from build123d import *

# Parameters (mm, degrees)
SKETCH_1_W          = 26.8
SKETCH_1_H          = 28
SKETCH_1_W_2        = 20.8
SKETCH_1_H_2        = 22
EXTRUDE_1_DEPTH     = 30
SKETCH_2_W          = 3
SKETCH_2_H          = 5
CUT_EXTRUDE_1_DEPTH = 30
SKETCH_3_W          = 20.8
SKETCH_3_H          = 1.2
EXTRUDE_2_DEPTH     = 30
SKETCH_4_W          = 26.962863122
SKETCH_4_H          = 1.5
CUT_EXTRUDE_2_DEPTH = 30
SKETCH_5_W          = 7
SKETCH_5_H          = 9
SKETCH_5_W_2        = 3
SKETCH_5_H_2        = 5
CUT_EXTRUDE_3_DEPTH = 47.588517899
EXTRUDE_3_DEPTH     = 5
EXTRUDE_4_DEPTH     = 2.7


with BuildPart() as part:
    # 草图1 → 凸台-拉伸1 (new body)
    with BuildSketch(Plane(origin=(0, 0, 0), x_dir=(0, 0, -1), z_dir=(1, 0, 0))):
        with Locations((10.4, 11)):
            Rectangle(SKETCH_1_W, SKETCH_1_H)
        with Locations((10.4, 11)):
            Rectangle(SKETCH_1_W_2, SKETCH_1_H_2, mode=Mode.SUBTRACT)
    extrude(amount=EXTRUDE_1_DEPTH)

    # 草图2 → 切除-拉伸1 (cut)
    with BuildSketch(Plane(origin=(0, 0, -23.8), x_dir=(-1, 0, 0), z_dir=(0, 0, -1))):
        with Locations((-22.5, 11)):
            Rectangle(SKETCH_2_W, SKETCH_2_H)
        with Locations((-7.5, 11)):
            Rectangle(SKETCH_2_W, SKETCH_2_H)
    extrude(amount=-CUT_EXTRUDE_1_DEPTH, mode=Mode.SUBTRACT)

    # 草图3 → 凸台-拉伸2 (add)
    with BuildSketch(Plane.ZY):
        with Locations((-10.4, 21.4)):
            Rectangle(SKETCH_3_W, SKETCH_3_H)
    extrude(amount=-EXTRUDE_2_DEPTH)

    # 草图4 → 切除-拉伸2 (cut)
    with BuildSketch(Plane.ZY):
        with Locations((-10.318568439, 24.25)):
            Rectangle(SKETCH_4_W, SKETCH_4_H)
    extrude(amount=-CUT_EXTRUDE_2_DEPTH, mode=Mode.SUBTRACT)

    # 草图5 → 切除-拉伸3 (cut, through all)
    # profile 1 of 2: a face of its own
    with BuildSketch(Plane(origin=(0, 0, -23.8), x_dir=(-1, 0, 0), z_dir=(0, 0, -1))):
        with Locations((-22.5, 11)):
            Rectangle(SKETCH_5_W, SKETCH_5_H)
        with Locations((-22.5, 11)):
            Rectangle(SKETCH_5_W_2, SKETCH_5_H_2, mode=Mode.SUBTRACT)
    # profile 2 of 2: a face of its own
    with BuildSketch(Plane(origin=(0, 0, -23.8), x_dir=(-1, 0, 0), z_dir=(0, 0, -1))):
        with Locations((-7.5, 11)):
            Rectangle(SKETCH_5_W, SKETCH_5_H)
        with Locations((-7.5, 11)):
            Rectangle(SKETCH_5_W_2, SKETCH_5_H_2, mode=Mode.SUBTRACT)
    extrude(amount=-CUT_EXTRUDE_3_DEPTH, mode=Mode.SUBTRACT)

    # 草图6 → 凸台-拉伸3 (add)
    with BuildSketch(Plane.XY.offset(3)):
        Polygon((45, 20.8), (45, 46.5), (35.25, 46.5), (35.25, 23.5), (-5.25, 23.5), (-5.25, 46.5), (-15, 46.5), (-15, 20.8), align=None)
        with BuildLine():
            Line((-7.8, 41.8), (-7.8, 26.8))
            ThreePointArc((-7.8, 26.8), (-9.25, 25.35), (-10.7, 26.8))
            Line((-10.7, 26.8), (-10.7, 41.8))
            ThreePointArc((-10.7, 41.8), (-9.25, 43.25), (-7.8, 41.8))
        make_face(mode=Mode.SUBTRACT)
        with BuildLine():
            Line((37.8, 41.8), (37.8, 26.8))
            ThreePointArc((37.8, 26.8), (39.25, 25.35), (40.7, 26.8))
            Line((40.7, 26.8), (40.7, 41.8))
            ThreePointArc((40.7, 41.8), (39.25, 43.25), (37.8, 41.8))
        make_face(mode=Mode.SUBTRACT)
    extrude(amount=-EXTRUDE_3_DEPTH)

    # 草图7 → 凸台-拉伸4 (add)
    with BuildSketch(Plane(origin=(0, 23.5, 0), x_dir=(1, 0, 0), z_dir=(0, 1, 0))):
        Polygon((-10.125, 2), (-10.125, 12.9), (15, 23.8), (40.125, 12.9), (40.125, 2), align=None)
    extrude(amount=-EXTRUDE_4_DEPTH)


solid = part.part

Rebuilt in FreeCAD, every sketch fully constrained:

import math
import FreeCAD as App
import Part
import Sketcher
from FreeCAD import Vector
Q = App.Units.Quantity


def add_polygon(sketch, points):
    """Adds a closed chain of lines whose ends are joined by coincident constraints."""
    first, n = sketch.GeometryCount, len(points)
    for a, b in zip(points, points[1:] + points[:1]):
        sketch.addGeometry(Part.LineSegment(App.Vector(*a, 0), App.Vector(*b, 0)), False)
    for i in range(n):
        sketch.addConstraint(Sketcher.Constraint("Coincident", first + i, 2, first + (i + 1) % n, 1))

doc = App.newDocument("Part")
params = doc.addObject("Spreadsheet::Sheet", "Params")
for row, (alias, value) in enumerate([
    ("sketch1_width", "28 mm"),
    ("sketch1_width2", "22 mm"),
    ("sketch1_height", "26.8 mm"),
    ("sketch1_height2", "20.8 mm"),
    ("pad1_length", "30 mm"),
    ("sketch2_width", "3 mm"),
    ("sketch2_height", "5 mm"),
    ("pocket1_length", "30 mm"),
    ("sketch3_width", "1.2 mm"),
    ("sketch3_height", "20.8 mm"),
    ("pad2_length", "30 mm"),
    ("sketch4_width", "1.5 mm"),
    ("pocket2_length", "30 mm"),
    ("sketch5_width", "7 mm"),
    ("sketch5_width2", "3 mm"),
    ("sketch5_height", "9 mm"),
    ("sketch5_height2", "5 mm"),
    ("pocket3_length", "47.588518 mm"),
    ("sketch6_width", "60 mm"),
    ("sketch6_height", "23 mm"),
    ("sketch6_height2", "15 mm"),
    ("sketch6_radius", "1.45 mm"),
    ("sketch6_width2", "40.5 mm"),
    ("pad3_length", "5 mm"),
    ("sketch7_height", "10.9 mm"),
    ("sketch7_width", "50.25 mm"),
    ("pad4_length", "2.7 mm"),
], start=1):
    params.set(f"A{row}", alias)
    params.set(f"B{row}", "=" + value)
    params.setAlias(f"B{row}", alias)

body = doc.addObject("PartDesign::Body", "Body")

sketch1 = body.newObject("Sketcher::SketchObject", "Sketch")
sketch1.AttachmentSupport = (doc.getObject("YZ_Plane"), [""])
sketch1.MapMode = "FlatFace"
add_polygon(sketch1, [(25, 3), (-3, 3), (-3, -24), (25, -24)])
add_polygon(sketch1, [(0, -21), (0, 0), (22, 0), (22, -21)])
sketch1.addConstraint(Sketcher.Constraint("Horizontal", 0))
sketch1.addConstraint(Sketcher.Constraint("Vertical", 1))
sketch1.addConstraint(Sketcher.Constraint("Horizontal", 2))
sketch1.addConstraint(Sketcher.Constraint("Vertical", 3))
sketch1.addConstraint(Sketcher.Constraint("Vertical", 4))
sketch1.addConstraint(Sketcher.Constraint("Horizontal", 5))
sketch1.addConstraint(Sketcher.Constraint("Vertical", 6))
sketch1.addConstraint(Sketcher.Constraint("Horizontal", 7))
sketch1.addConstraint(Sketcher.Constraint("Coincident", 4, 2, -1, 1))
sketch1.addConstraint(Sketcher.Constraint("DistanceX", 0, 2, 0, 1, Q("28 mm")))
sketch1.addConstraint(Sketcher.Constraint("DistanceX", 5, 1, 5, 2, Q("22 mm")))
sketch1.addConstraint(Sketcher.Constraint("DistanceY", 1, 2, 1, 1, Q("26.8 mm")))
sketch1.addConstraint(Sketcher.Constraint("DistanceY", 4, 1, 4, 2, Q("20.8 mm")))
sketch1.addConstraint(Sketcher.Constraint("DistanceX", 0, 2, -1, 1, Q("3 mm")))
sketch1.addConstraint(Sketcher.Constraint("DistanceY", -1, 1, 0, 2, Q("3 mm")))
sketch1.setExpression("Constraints[17]", "Params.sketch1_width")
sketch1.setExpression("Constraints[18]", "Params.sketch1_width2")
sketch1.setExpression("Constraints[19]", "Params.sketch1_height")
sketch1.setExpression("Constraints[20]", "Params.sketch1_height2")
pad1 = body.newObject("PartDesign::Pad", "Pad")
pad1.Profile = sketch1
pad1.setExpression("Length", "Params.pad1_length")

sketch2 = body.newObject("Sketcher::SketchObject", "Sketch001")
sketch2.AttachmentSupport = (doc.getObject("XY_Plane"), [""])
sketch2.MapMode = "FlatFace"
sketch2.AttachmentOffset = App.Placement(Vector(0, 0, -23.8), App.Rotation())
add_polygon(sketch2, [(24, 13.5), (24, 8.5), (21, 8.5), (21, 13.5)])
add_polygon(sketch2, [(9, 13.5), (9, 8.5), (6, 8.5), (6, 13.5)])
sketch2.addConstraint(Sketcher.Constraint("Vertical", 0))
sketch2.addConstraint(Sketcher.Constraint("Horizontal", 1))
sketch2.addConstraint(Sketcher.Constraint("Vertical", 2))
sketch2.addConstraint(Sketcher.Constraint("Horizontal", 3))
sketch2.addConstraint(Sketcher.Constraint("Vertical", 4))
sketch2.addConstraint(Sketcher.Constraint("Horizontal", 5))
sketch2.addConstraint(Sketcher.Constraint("Vertical", 6))
sketch2.addConstraint(Sketcher.Constraint("Horizontal", 7))
sketch2.addConstraint(Sketcher.Constraint("Horizontal", 1, 2, 4, 2))
sketch2.addConstraint(Sketcher.Constraint("Horizontal", 3, 2, 6, 2))
sketch2.addConstraint(Sketcher.Constraint("Equal", 3, 5))
sketch2.addConstraint(Sketcher.Constraint("DistanceX", 1, 2, 1, 1, Q("3 mm")))
sketch2.addConstraint(Sketcher.Constraint("DistanceY", 0, 2, 0, 1, Q("5 mm")))
sketch2.addConstraint(Sketcher.Constraint("DistanceX", -1, 1, 0, 2, Q("24 mm")))
sketch2.addConstraint(Sketcher.Constraint("DistanceX", -1, 1, 4, 2, Q("9 mm")))
sketch2.addConstraint(Sketcher.Constraint("DistanceY", -1, 1, 0, 2, Q("8.5 mm")))
sketch2.setExpression("Constraints[19]", "Params.sketch2_width")
sketch2.setExpression("Constraints[20]", "Params.sketch2_height")
pocket1 = body.newObject("PartDesign::Pocket", "Pocket")
pocket1.Profile = sketch2
pocket1.setExpression("Length", "Params.pocket1_length")
pocket1.Reversed = True

sketch3 = body.newObject("Sketcher::SketchObject", "Sketch002")
sketch3.AttachmentSupport = (doc.getObject("YZ_Plane"), [""])
sketch3.MapMode = "FlatFace"
add_polygon(sketch3, [(22, -20.8), (20.8, -20.8), (20.8, 0), (22, 0)])
sketch3.addConstraint(Sketcher.Constraint("Horizontal", 0))
sketch3.addConstraint(Sketcher.Constraint("Vertical", 1))
sketch3.addConstraint(Sketcher.Constraint("Horizontal", 2))
sketch3.addConstraint(Sketcher.Constraint("Vertical", 3))
sketch3.addConstraint(Sketcher.Constraint("PointOnObject", 1, 2, -1))
sketch3.addConstraint(Sketcher.Constraint("DistanceX", 0, 2, 0, 1, Q("1.2 mm")))
sketch3.addConstraint(Sketcher.Constraint("DistanceY", 1, 1, 1, 2, Q("20.8 mm")))
sketch3.addConstraint(Sketcher.Constraint("DistanceX", -1, 1, 2, 2, Q("22 mm")))
sketch3.setExpression("Constraints[9]", "Params.sketch3_width")
sketch3.setExpression("Constraints[10]", "Params.sketch3_height")
pad2 = body.newObject("PartDesign::Pad", "Pad001")
pad2.Profile = sketch3
pad2.setExpression("Length", "Params.pad2_length")

sketch4 = body.newObject("Sketcher::SketchObject", "Sketch003")
sketch4.AttachmentSupport = (doc.getObject("YZ_Plane"), [""])
sketch4.MapMode = "FlatFace"
add_polygon(sketch4, [(25, -23.8), (23.5, -23.8), (23.5, 3.2), (25, 3.2)])
sketch4.addConstraint(Sketcher.Constraint("Horizontal", 0))
sketch4.addConstraint(Sketcher.Constraint("Vertical", 1))
sketch4.addConstraint(Sketcher.Constraint("Horizontal", 2))
sketch4.addConstraint(Sketcher.Constraint("Vertical", 3))
sketch4.addConstraint(Sketcher.Constraint("DistanceX", 0, 2, 0, 1, Q("1.5 mm")))
sketch4.addConstraint(Sketcher.Constraint("DistanceX", -1, 1, 2, 2, Q("25 mm")))
sketch4.addConstraint(Sketcher.Constraint("DistanceY", 0, 2, -1, 1, Q("23.8 mm")))
sketch4.addConstraint(Sketcher.Constraint("DistanceY", 1, 1, 1, 2, Q("26.962863 mm")))
sketch4.setExpression("Constraints[8]", "Params.sketch4_width")
pocket2 = body.newObject("PartDesign::Pocket", "Pocket001")
pocket2.Profile = sketch4
pocket2.setExpression("Length", "Params.pocket2_length")
pocket2.Reversed = True

sketch5 = body.newObject("Sketcher::SketchObject", "Sketch004")
sketch5.AttachmentSupport = (doc.getObject("XY_Plane"), [""])
sketch5.MapMode = "FlatFace"
sketch5.AttachmentOffset = App.Placement(Vector(0, 0, -23.8), App.Rotation())
add_polygon(sketch5, [(26, 15.5), (26, 6.5), (19, 6.5), (19, 15.5)])
add_polygon(sketch5, [(21, 8.5), (24, 8.5), (24, 13.5), (21, 13.5)])
add_polygon(sketch5, [(11, 15.5), (11, 6.5), (4, 6.5), (4, 15.5)])
add_polygon(sketch5, [(6, 8.5), (9, 8.5), (9, 13.5), (6, 13.5)])
sketch5.addConstraint(Sketcher.Constraint("Vertical", 0))
sketch5.addConstraint(Sketcher.Constraint("Horizontal", 1))
sketch5.addConstraint(Sketcher.Constraint("Vertical", 2))
sketch5.addConstraint(Sketcher.Constraint("Horizontal", 3))
sketch5.addConstraint(Sketcher.Constraint("Horizontal", 4))
sketch5.addConstraint(Sketcher.Constraint("Vertical", 5))
sketch5.addConstraint(Sketcher.Constraint("Horizontal", 6))
sketch5.addConstraint(Sketcher.Constraint("Vertical", 7))
sketch5.addConstraint(Sketcher.Constraint("Vertical", 8))
sketch5.addConstraint(Sketcher.Constraint("Horizontal", 9))
sketch5.addConstraint(Sketcher.Constraint("Vertical", 10))
sketch5.addConstraint(Sketcher.Constraint("Horizontal", 11))
sketch5.addConstraint(Sketcher.Constraint("Horizontal", 12))
sketch5.addConstraint(Sketcher.Constraint("Vertical", 13))
sketch5.addConstraint(Sketcher.Constraint("Horizontal", 14))
sketch5.addConstraint(Sketcher.Constraint("Vertical", 15))
sketch5.addConstraint(Sketcher.Constraint("Horizontal", 1, 2, 8, 2))
sketch5.addConstraint(Sketcher.Constraint("Horizontal", 3, 2, 10, 2))
sketch5.addConstraint(Sketcher.Constraint("Horizontal", 7, 2, 12, 2))
sketch5.addConstraint(Sketcher.Constraint("Horizontal", 6, 2, 13, 2))
sketch5.addConstraint(Sketcher.Constraint("Equal", 3, 9))
sketch5.addConstraint(Sketcher.Constraint("Equal", 6, 12))
sketch5.addConstraint(Sketcher.Constraint("DistanceX", 1, 2, 1, 1, Q("7 mm")))
sketch5.addConstraint(Sketcher.Constraint("DistanceX", 4, 1, 4, 2, Q("3 mm")))
sketch5.addConstraint(Sketcher.Constraint("DistanceY", 0, 2, 0, 1, Q("9 mm")))
sketch5.addConstraint(Sketcher.Constraint("DistanceY", 5, 1, 5, 2, Q("5 mm")))
sketch5.addConstraint(Sketcher.Constraint("DistanceX", -1, 1, 0, 2, Q("26 mm")))
sketch5.addConstraint(Sketcher.Constraint("DistanceX", -1, 1, 4, 2, Q("24 mm")))
sketch5.addConstraint(Sketcher.Constraint("DistanceX", -1, 1, 8, 2, Q("11 mm")))
sketch5.addConstraint(Sketcher.Constraint("DistanceX", -1, 1, 12, 2, Q("9 mm")))
sketch5.addConstraint(Sketcher.Constraint("DistanceY", 0, 2, 4, 2, Q("2 mm")))
sketch5.addConstraint(Sketcher.Constraint("DistanceY", -1, 1, 0, 2, Q("6.5 mm")))
sketch5.setExpression("Constraints[38]", "Params.sketch5_width")
sketch5.setExpression("Constraints[39]", "Params.sketch5_width2")
sketch5.setExpression("Constraints[40]", "Params.sketch5_height")
sketch5.setExpression("Constraints[41]", "Params.sketch5_height2")
pocket3 = body.newObject("PartDesign::Pocket", "Pocket002")
pocket3.Profile = sketch5
pocket3.setExpression("Length", "Params.pocket3_length")
pocket3.Reversed = True

sketch6 = body.newObject("Sketcher::SketchObject", "Sketch005")
sketch6.AttachmentSupport = (doc.getObject("XY_Plane"), [""])
sketch6.MapMode = "FlatFace"
sketch6.AttachmentOffset = App.Placement(Vector(0, 0, 3), App.Rotation())
add_polygon(sketch6, [(45, 20.8), (45, 46.5), (35.2, 46.5), (35.2, 23.5), (-5.2, 23.5), (-5.2, 46.5), (-15, 46.5), (-15, 20.8)])
sketch6.addGeometry(Part.ArcOfCircle(Part.Circle(Vector(-9.2, 41.8, 0), Vector(0, 0, 1), 1.4), math.radians(0), math.radians(180)), False)
sketch6.addGeometry(Part.LineSegment(Vector(-7.8, 41.8, 0), Vector(-7.8, 26.8, 0)), False)
sketch6.addGeometry(Part.ArcOfCircle(Part.Circle(Vector(-9.2, 26.8, 0), Vector(0, 0, 1), 1.4), math.radians(180), math.radians(360)), False)
sketch6.addGeometry(Part.LineSegment(Vector(-10.7, 26.8, 0), Vector(-10.7, 41.8, 0)), False)
sketch6.addGeometry(Part.LineSegment(Vector(37.8, 26.8, 0), Vector(37.8, 41.8, 0)), False)
sketch6.addGeometry(Part.ArcOfCircle(Part.Circle(Vector(39.2, 41.8, 0), Vector(0, 0, 1), 1.4), math.radians(0), math.radians(180)), False)
sketch6.addGeometry(Part.LineSegment(Vector(40.7, 41.8, 0), Vector(40.7, 26.8, 0)), False)
sketch6.addGeometry(Part.ArcOfCircle(Part.Circle(Vector(39.2, 26.8, 0), Vector(0, 0, 1), 1.4), math.radians(180), math.radians(360)), False)
sketch6.addConstraint(Sketcher.Constraint("Tangent", 8, 1, 9, 1))
sketch6.addConstraint(Sketcher.Constraint("Tangent", 9, 2, 10, 2))
sketch6.addConstraint(Sketcher.Constraint("Tangent", 10, 1, 11, 1))
sketch6.addConstraint(Sketcher.Constraint("Tangent", 11, 2, 8, 2))
sketch6.addConstraint(Sketcher.Constraint("Tangent", 12, 2, 13, 2))
sketch6.addConstraint(Sketcher.Constraint("Tangent", 13, 1, 14, 1))
sketch6.addConstraint(Sketcher.Constraint("Tangent", 14, 2, 15, 2))
sketch6.addConstraint(Sketcher.Constraint("Tangent", 15, 1, 12, 1))
sketch6.addConstraint(Sketcher.Constraint("Vertical", 0))
sketch6.addConstraint(Sketcher.Constraint("Horizontal", 1))
sketch6.addConstraint(Sketcher.Constraint("Vertical", 2))
sketch6.addConstraint(Sketcher.Constraint("Horizontal", 3))
sketch6.addConstraint(Sketcher.Constraint("Vertical", 4))
sketch6.addConstraint(Sketcher.Constraint("Horizontal", 5))
sketch6.addConstraint(Sketcher.Constraint("Vertical", 6))
sketch6.addConstraint(Sketcher.Constraint("Horizontal", 7))
sketch6.addConstraint(Sketcher.Constraint("Vertical", 9))
sketch6.addConstraint(Sketcher.Constraint("Vertical", 11))
sketch6.addConstraint(Sketcher.Constraint("Vertical", 12))
sketch6.addConstraint(Sketcher.Constraint("Vertical", 14))
sketch6.addConstraint(Sketcher.Constraint("Equal", 10, 13))
sketch6.addConstraint(Sketcher.Constraint("Horizontal", 8, 3, 13, 3))
sketch6.addConstraint(Sketcher.Constraint("Horizontal", 10, 3, 15, 3))
sketch6.addConstraint(Sketcher.Constraint("Horizontal", 1, 2, 4, 2))
sketch6.addConstraint(Sketcher.Constraint("Equal", 1, 5))
sketch6.addConstraint(Sketcher.Constraint("DistanceX", 7, 1, 7, 2, Q("60 mm")))
sketch6.addConstraint(Sketcher.Constraint("DistanceY", 2, 2, 2, 1, Q("23 mm")))
sketch6.addConstraint(Sketcher.Constraint("DistanceY", 9, 2, 9, 1, Q("15 mm")))
sketch6.addConstraint(Sketcher.Constraint("Radius", 8, Q("1.45 mm")))
sketch6.addConstraint(Sketcher.Constraint("DistanceX", 3, 2, 3, 1, Q("40.5 mm")))
sketch6.addConstraint(Sketcher.Constraint("DistanceY", 0, 1, 0, 2, Q("25.7 mm")))
sketch6.addConstraint(Sketcher.Constraint("DistanceX", -1, 1, 0, 2, Q("45 mm")))
sketch6.addConstraint(Sketcher.Constraint("DistanceX", 1, 2, 13, 3, Q("4 mm")))
sketch6.addConstraint(Sketcher.Constraint("DistanceX", 10, 3, 3, 2, Q("4 mm")))
sketch6.addConstraint(Sketcher.Constraint("DistanceY", 6, 2, 10, 3, Q("6 mm")))
sketch6.addConstraint(Sketcher.Constraint("DistanceY", -1, 1, 8, 3, Q("41.8 mm")))
sketch6.setExpression("Constraints[33]", "Params.sketch6_width")
sketch6.setExpression("Constraints[34]", "Params.sketch6_height")
sketch6.setExpression("Constraints[35]", "Params.sketch6_height2")
sketch6.setExpression("Constraints[36]", "Params.sketch6_radius")
sketch6.setExpression("Constraints[37]", "Params.sketch6_width2")
pad3 = body.newObject("PartDesign::Pad", "Pad002")
pad3.Profile = sketch6
pad3.setExpression("Length", "Params.pad3_length")
pad3.Reversed = True

sketch7 = body.newObject("Sketcher::SketchObject", "Sketch006")
sketch7.AttachmentSupport = (doc.getObject("XZ_Plane"), [""])
sketch7.MapMode = "FlatFace"
sketch7.AttachmentOffset = App.Placement(Vector(0, 0, -23.5), App.Rotation())
add_polygon(sketch7, [(-10, -13), (-10, -2), (40, -2), (40, -13), (15, -24)])
sketch7.addConstraint(Sketcher.Constraint("Vertical", 0))
sketch7.addConstraint(Sketcher.Constraint("Horizontal", 1))
sketch7.addConstraint(Sketcher.Constraint("Vertical", 2))
sketch7.addConstraint(Sketcher.Constraint("Horizontal", 2, 2, 4, 2))
sketch7.addConstraint(Sketcher.Constraint("Equal", 3, 4))
sketch7.addConstraint(Sketcher.Constraint("DistanceY", 0, 1, 0, 2, Q("10.9 mm")))
sketch7.addConstraint(Sketcher.Constraint("DistanceY", 0, 2, -1, 1, Q("2 mm")))
sketch7.addConstraint(Sketcher.Constraint("DistanceX", -1, 1, 3, 2, Q("15 mm")))
sketch7.addConstraint(Sketcher.Constraint("DistanceX", 1, 1, 1, 2, Q("50.25 mm")))
sketch7.addConstraint(Sketcher.Constraint("DistanceY", 3, 2, -1, 1, Q("23.8 mm")))
sketch7.setExpression("Constraints[10]", "Params.sketch7_height")
sketch7.setExpression("Constraints[13]", "Params.sketch7_width")
pad4 = body.newObject("PartDesign::Pad", "Pad003")
pad4.Profile = sketch7
pad4.setExpression("Length", "Params.pad4_length")

doc.recompute()
